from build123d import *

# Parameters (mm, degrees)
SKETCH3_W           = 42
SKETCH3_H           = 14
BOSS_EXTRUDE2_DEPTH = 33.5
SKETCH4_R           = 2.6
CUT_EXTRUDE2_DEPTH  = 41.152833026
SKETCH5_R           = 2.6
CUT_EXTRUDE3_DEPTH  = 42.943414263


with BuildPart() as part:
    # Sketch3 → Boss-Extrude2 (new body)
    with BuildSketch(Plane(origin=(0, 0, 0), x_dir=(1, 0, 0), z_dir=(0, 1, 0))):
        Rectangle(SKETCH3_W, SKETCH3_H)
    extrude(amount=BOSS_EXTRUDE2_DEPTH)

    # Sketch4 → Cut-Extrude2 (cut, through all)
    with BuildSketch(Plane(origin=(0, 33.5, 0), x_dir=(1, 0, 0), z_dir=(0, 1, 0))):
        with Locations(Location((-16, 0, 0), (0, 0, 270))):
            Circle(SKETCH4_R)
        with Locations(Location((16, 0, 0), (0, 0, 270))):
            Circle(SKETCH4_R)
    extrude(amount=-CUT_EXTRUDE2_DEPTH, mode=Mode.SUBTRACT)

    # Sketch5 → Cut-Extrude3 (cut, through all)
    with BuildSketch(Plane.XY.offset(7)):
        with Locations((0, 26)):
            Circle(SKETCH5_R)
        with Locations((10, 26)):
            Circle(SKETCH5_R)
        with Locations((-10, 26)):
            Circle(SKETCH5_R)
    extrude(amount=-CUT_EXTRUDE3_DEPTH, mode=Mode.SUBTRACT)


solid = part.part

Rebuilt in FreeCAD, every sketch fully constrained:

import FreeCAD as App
import Part
import Sketcher
from FreeCAD import Vector
Q = App.Units.Quantity


def add_polygon(sketch, points):
    """Adds a closed chain of lines whose ends are joined by coincident constraints."""
    first, n = sketch.GeometryCount, len(points)
    for a, b in zip(points, points[1:] + points[:1]):
        sketch.addGeometry(Part.LineSegment(App.Vector(*a, 0), App.Vector(*b, 0)), False)
    for i in range(n):
        sketch.addConstraint(Sketcher.Constraint("Coincident", first + i, 2, first + (i + 1) % n, 1))

doc = App.newDocument("Part")
params = doc.addObject("Spreadsheet::Sheet", "Params")
for row, (alias, value) in enumerate([
    ("sketch1_width", "42 mm"),
    ("sketch1_height", "14 mm"),
    ("pad1_length", "33.5 mm"),
    ("sketch2_diameter", "5.2 mm"),
    ("sketch3_diameter", "5.2 mm"),
], start=1):
    params.set(f"A{row}", alias)
    params.set(f"B{row}", "=" + value)
    params.setAlias(f"B{row}", alias)

body = doc.addObject("PartDesign::Body", "Body")

# Sketch on XZ plane
sketch1 = body.newObject("Sketcher::SketchObject", "Sketch")
sketch1.AttachmentSupport = (doc.getObject("XZ_Plane"), [""])
sketch1.MapMode = "FlatFace"
add_polygon(sketch1, [(-21, -7), (-21, 7), (21, 7), (21, -7)])  # lines 0-3
sketch1.addConstraint(Sketcher.Constraint("Vertical", 0))
sketch1.addConstraint(Sketcher.Constraint("Horizontal", 1))
sketch1.addConstraint(Sketcher.Constraint("Vertical", 2))
sketch1.addConstraint(Sketcher.Constraint("Horizontal", 3))
sketch1.addConstraint(Sketcher.Constraint("Symmetric", 0, 2, 2, 2, -1, 1))
sketch1.addConstraint(Sketcher.Constraint("DistanceX", 1, 1, 1, 2, Q("42 mm")))
sketch1.addConstraint(Sketcher.Constraint("DistanceY", 0, 1, 0, 2, Q("14 mm")))
sketch1.setExpression("Constraints[9]", "Params.sketch1_width")
sketch1.setExpression("Constraints[10]", "Params.sketch1_height")
pad1 = body.newObject("PartDesign::Pad", "Pad")
pad1.Profile = sketch1
pad1.setExpression("Length", "Params.pad1_length")
pad1.Reversed = True

# Sketch on XZ plane
sketch2 = body.newObject("Sketcher::SketchObject", "Sketch001")
sketch2.AttachmentSupport = (doc.getObject("XZ_Plane"), [""])
sketch2.MapMode = "FlatFace"
sketch2.AttachmentOffset = App.Placement(Vector(0, 0, -33.5), App.Rotation())
sketch2.addGeometry(Part.Circle(Vector(-16, 0, 0), Vector(0, 0, 1), 2.6), False)
sketch2.addGeometry(Part.Circle(Vector(16, 0, 0), Vector(0, 0, 1), 2.6), False)
sketch2.addConstraint(Sketcher.Constraint("Equal", 0, 1))
sketch2.addConstraint(Sketcher.Constraint("Symmetric", 0, 3, 1, 3, -1, 1))
sketch2.addConstraint(Sketcher.Constraint("PointOnObject", 0, 3, -1))
sketch2.addConstraint(Sketcher.Constraint("Diameter", 0, Q("5.2 mm")))
sketch2.addConstraint(Sketcher.Constraint("DistanceX", 0, 3, -1, 1, Q("16 mm")))
sketch2.setExpression("Constraints[3]", "Params.sketch2_diameter")
pocket1 = body.newObject("PartDesign::Pocket", "Pocket")
pocket1.Profile = sketch2
pocket1.Type = "ThroughAll"
pocket1.Reversed = True

# Sketch on XY plane
sketch3 = body.newObject("Sketcher::SketchObject", "Sketch002")
sketch3.AttachmentSupport = (doc.getObject("XY_Plane"), [""])
sketch3.MapMode = "FlatFace"
sketch3.AttachmentOffset = App.Placement(Vector(0, 0, 7), App.Rotation())
sketch3.addGeometry(Part.Circle(Vector(0, 26, 0), Vector(0, 0, 1), 2.6), False)
sketch3.addGeometry(Part.Circle(Vector(10, 26, 0), Vector(0, 0, 1), 2.6), False)
sketch3.addGeometry(Part.Circle(Vector(-10, 26, 0), Vector(0, 0, 1), 2.6), False)
sketch3.addConstraint(Sketcher.Constraint("Equal", 0, 1))
sketch3.addConstraint(Sketcher.Constraint("Equal", 1, 2))
sketch3.addConstraint(Sketcher.Constraint("Symmetric", 1, 3, 2, 3, -2))
sketch3.addConstraint(Sketcher.Constraint("PointOnObject", 0, 3, -2))
sketch3.addConstraint(Sketcher.Constraint("Horizontal", 0, 3, 1, 3))
sketch3.addConstraint(Sketcher.Constraint("Diameter", 0, Q("5.2 mm")))
sketch3.addConstraint(Sketcher.Constraint("DistanceY", -1, 1, 0, 3, Q("26 mm")))
sketch3.addConstraint(Sketcher.Constraint("DistanceX", -1, 1, 1, 3, Q("10 mm")))
sketch3.setExpression("Constraints[5]", "Params.sketch3_diameter")
pocket2 = body.newObject("PartDesign::Pocket", "Pocket001")
pocket2.Profile = sketch3
pocket2.Type = "ThroughAll"

doc.recompute()
